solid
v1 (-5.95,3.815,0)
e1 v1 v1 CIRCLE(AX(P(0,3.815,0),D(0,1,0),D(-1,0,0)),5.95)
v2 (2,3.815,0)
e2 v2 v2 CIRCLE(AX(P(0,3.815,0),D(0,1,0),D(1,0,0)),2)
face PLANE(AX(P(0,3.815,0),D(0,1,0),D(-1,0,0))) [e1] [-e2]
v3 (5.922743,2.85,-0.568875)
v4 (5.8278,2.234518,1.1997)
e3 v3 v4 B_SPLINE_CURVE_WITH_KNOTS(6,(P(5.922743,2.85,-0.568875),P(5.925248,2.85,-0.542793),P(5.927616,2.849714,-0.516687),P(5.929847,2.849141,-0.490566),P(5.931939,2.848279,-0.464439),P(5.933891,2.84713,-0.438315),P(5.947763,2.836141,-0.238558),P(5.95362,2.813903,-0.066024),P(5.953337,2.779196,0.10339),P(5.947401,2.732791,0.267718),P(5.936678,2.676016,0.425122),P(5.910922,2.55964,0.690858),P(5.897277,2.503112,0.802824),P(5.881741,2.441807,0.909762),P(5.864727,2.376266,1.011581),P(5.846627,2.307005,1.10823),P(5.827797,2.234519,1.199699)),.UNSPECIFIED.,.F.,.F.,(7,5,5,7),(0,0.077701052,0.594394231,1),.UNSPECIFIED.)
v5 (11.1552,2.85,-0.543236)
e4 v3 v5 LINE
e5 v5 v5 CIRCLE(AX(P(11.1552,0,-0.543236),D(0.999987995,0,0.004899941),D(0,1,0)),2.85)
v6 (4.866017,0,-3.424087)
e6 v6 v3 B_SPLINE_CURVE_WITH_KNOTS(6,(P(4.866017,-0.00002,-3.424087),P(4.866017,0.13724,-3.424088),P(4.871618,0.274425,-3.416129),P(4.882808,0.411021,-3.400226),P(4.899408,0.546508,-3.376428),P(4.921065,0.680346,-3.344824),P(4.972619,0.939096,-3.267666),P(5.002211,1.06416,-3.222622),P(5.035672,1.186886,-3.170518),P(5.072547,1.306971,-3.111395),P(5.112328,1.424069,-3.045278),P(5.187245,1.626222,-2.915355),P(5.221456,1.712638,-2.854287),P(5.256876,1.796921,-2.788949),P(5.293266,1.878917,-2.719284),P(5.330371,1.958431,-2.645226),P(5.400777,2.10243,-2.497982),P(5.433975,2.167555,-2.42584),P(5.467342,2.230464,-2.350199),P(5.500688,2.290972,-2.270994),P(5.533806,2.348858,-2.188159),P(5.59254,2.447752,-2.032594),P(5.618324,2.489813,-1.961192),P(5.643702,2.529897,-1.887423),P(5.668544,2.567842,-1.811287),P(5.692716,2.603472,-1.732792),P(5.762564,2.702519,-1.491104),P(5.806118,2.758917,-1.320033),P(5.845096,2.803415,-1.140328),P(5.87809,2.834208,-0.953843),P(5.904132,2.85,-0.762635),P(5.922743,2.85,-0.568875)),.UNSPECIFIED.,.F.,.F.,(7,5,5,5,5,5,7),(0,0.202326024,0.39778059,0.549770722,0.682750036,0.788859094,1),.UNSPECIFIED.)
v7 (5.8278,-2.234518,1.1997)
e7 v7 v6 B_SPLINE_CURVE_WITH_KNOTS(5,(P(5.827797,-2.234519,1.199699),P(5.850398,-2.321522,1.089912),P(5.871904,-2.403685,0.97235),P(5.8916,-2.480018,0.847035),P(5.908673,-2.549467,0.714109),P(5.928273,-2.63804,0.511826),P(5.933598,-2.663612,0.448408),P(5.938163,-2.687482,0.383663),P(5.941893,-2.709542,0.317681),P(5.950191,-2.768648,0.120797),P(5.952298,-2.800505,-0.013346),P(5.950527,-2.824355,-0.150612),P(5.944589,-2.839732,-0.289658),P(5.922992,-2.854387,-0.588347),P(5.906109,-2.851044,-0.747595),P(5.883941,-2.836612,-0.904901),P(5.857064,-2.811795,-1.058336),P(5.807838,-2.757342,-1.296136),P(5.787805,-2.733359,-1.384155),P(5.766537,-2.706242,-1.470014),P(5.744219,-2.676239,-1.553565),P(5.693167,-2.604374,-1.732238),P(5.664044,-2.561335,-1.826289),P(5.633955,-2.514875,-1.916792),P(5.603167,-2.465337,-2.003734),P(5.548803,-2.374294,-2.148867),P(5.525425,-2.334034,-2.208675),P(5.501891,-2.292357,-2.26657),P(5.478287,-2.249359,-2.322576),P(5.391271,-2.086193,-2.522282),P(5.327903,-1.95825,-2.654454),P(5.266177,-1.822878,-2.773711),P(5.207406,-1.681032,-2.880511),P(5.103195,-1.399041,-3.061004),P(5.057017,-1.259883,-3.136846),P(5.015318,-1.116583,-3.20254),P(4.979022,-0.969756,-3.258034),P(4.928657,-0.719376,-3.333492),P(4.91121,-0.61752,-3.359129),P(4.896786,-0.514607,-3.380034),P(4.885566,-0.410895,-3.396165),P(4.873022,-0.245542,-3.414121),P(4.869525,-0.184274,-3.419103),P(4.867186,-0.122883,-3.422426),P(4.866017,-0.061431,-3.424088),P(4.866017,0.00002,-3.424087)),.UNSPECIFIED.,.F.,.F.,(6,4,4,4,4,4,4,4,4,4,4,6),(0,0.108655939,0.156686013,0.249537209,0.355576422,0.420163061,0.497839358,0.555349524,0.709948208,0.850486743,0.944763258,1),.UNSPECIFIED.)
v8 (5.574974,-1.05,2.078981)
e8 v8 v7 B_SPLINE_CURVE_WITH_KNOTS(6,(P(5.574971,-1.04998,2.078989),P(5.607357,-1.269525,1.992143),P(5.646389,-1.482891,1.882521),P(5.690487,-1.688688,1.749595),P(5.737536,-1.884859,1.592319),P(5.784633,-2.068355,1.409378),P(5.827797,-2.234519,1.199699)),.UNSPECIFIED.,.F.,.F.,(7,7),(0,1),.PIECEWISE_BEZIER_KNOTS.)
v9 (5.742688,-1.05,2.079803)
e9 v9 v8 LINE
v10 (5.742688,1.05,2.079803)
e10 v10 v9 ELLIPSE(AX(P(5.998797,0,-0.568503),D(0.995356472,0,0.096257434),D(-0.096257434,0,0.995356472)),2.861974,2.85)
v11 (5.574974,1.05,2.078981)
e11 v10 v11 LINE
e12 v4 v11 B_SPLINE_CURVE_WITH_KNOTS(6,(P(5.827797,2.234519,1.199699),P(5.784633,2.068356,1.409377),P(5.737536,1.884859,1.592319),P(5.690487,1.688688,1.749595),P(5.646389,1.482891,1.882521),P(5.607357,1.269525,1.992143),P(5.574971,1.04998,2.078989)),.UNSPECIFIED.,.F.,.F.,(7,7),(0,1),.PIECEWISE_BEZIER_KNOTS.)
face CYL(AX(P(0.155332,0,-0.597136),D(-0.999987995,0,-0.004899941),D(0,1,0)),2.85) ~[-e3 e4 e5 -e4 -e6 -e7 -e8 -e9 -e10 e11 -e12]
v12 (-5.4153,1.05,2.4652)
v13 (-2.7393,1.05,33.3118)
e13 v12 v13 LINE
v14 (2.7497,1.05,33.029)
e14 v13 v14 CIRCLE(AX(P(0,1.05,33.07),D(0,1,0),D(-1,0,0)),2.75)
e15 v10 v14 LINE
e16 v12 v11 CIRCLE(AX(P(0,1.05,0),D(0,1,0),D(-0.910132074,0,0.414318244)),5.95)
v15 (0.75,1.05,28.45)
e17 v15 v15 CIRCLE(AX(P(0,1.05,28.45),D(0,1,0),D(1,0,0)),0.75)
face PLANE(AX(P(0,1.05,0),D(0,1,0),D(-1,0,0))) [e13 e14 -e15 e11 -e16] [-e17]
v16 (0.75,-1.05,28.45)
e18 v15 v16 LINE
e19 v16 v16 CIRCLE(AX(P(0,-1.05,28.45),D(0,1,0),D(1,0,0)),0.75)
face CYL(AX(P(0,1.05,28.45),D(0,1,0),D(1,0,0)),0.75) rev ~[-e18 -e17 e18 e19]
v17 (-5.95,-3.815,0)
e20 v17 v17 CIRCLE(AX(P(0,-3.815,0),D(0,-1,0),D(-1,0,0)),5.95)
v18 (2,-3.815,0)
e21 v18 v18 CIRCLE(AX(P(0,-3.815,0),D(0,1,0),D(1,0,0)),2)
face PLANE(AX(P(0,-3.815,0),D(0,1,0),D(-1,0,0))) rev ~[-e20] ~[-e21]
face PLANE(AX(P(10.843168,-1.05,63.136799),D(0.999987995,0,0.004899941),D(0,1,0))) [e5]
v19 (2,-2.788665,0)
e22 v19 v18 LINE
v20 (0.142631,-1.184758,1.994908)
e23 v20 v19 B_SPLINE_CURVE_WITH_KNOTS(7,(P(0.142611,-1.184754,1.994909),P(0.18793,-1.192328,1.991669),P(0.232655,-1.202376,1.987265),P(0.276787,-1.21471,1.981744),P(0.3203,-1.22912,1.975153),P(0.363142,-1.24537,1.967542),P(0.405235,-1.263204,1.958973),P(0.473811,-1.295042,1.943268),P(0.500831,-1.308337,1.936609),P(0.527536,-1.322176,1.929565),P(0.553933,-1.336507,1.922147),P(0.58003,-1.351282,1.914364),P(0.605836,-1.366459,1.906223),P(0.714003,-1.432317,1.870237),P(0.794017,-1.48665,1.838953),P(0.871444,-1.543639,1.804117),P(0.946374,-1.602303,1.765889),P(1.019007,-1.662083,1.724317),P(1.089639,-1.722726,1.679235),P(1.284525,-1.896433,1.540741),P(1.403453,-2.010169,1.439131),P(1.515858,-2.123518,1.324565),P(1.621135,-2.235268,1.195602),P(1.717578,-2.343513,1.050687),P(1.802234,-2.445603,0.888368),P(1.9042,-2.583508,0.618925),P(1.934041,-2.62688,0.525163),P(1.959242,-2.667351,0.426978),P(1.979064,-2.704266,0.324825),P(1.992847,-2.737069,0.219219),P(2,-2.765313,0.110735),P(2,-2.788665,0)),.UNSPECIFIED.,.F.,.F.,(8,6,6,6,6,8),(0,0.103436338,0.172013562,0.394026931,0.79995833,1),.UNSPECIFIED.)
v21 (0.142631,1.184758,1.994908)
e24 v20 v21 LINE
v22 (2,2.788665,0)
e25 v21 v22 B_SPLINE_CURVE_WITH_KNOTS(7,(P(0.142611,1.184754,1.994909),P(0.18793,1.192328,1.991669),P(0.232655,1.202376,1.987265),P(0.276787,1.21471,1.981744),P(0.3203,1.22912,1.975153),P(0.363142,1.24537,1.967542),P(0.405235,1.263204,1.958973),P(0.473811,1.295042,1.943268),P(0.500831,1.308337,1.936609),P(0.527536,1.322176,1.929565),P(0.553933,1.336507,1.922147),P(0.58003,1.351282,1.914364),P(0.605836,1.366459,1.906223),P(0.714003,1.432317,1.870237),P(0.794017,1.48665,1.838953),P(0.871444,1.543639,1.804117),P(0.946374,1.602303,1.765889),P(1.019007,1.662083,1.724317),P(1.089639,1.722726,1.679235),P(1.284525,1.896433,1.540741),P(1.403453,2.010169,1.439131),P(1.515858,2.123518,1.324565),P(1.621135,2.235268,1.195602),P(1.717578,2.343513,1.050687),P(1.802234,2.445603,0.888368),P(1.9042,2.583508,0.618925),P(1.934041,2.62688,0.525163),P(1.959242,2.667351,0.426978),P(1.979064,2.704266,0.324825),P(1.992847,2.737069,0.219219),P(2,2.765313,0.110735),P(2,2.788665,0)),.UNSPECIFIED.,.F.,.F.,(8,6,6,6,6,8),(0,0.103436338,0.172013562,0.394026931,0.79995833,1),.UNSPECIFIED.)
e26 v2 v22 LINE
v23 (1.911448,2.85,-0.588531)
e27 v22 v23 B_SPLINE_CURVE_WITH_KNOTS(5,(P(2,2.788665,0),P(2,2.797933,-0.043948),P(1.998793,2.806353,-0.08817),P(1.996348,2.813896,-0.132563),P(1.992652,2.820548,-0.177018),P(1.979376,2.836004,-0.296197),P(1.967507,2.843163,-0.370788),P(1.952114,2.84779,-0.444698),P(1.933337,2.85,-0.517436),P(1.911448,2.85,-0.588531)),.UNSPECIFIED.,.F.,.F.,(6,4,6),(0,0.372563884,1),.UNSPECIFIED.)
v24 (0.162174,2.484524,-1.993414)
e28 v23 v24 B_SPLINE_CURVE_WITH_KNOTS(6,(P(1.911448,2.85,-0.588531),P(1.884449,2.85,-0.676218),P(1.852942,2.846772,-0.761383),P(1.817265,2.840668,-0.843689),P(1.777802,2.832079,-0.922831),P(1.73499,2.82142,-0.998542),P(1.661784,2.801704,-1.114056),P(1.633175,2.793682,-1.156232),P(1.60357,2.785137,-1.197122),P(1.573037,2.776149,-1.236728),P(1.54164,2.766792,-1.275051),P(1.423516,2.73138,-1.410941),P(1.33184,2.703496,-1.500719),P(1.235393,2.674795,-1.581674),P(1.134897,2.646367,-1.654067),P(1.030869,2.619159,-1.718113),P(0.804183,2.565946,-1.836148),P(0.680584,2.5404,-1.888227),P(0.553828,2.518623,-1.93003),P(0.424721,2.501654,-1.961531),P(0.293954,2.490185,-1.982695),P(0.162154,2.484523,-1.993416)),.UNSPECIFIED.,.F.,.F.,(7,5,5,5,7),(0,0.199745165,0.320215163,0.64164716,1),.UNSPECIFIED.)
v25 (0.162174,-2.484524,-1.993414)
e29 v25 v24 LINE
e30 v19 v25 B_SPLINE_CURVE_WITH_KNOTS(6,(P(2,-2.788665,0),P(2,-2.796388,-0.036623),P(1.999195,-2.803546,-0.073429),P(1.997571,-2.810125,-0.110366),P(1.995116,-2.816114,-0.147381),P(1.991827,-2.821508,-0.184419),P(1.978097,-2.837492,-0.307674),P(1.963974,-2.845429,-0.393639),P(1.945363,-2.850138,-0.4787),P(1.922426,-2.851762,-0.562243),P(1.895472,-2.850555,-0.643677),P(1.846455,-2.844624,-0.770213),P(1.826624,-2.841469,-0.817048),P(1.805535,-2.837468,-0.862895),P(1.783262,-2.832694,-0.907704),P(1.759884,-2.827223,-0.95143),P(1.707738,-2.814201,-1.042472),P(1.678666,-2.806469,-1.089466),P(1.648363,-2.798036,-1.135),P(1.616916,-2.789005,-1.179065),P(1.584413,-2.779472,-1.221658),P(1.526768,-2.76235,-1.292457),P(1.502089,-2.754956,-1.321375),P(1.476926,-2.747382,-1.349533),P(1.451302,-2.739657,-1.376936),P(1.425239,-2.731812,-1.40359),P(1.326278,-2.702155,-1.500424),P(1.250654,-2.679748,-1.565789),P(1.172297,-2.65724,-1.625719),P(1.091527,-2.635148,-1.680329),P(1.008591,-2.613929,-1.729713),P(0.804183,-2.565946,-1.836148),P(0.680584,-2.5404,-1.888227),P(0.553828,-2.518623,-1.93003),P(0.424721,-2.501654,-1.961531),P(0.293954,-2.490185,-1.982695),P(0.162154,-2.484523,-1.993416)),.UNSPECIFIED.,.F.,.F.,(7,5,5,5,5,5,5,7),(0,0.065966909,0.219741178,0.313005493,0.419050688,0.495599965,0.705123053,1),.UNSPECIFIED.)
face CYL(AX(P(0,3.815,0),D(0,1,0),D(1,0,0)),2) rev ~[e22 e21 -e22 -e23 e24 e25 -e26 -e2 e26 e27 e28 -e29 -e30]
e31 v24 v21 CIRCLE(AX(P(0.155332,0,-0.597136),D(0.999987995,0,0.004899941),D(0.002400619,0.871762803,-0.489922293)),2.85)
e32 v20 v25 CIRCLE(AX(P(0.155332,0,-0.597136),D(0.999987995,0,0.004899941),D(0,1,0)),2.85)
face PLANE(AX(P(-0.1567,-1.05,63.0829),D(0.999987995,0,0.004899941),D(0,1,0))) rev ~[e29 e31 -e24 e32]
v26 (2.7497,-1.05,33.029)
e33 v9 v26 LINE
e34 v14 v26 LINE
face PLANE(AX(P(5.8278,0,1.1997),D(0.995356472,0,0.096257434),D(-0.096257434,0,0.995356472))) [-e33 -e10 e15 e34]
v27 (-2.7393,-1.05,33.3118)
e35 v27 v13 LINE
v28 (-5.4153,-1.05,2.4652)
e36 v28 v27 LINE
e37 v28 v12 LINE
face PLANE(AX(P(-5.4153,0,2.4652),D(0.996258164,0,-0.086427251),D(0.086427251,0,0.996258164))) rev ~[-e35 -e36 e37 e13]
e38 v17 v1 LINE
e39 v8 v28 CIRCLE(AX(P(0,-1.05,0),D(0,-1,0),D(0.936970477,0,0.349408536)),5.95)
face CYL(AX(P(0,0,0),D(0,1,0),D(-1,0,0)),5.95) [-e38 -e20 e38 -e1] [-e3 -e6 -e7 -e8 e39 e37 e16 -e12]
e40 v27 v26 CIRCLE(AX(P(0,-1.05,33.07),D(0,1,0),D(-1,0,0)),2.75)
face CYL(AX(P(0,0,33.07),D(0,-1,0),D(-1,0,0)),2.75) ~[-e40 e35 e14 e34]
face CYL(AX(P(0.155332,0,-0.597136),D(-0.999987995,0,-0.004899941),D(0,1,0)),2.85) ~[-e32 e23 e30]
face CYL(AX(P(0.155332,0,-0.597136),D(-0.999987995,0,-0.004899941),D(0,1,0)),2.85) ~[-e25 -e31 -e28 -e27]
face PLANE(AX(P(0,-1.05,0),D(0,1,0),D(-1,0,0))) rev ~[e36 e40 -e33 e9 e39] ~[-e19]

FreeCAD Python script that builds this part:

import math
import FreeCAD as App
import Part
import Sketcher

V = App.Vector

doc = App.newDocument("Part")
body = doc.addObject("PartDesign::Body", "Body")

# Sketch on XZ plane
sketch1 = doc.addObject("Sketcher::SketchObject", "Sketch")
body.addObject(sketch1)
sketch1.AttachmentSupport = (doc.XZ_Plane, [""])
sketch1.MapMode = "FlatFace"
sketch1.addGeometry(Part.Circle(V(0, 0, 0), V(0, 0, 1), 6), False)
sketch1.addConstraint([
    Sketcher.Constraint("Coincident", 0, 3, -1, 1),
    Sketcher.Constraint("Diameter", 0, 11.9),
])
pad1 = doc.addObject("PartDesign::Pad", "Pad")
body.addObject(pad1)
pad1.Profile = sketch1
pad1.Length = 7.63
pad1.Midplane = True

# Sketch on XZ plane
sketch2 = doc.addObject("Sketcher::SketchObject", "Sketch001")
body.addObject(sketch2)
sketch2.AttachmentSupport = (doc.XZ_Plane, [""])
sketch2.MapMode = "FlatFace"
sketch2.addGeometry([
    Part.LineSegment(V(-5.4, 2.5, 0), V(-2.7, 33.3, 0)),
    Part.ArcOfCircle(Part.Circle(V(0, 33.1, 0), V(0, 0, 1), 2.8), math.radians(-1), math.radians(175)),
    Part.LineSegment(V(2.7, 33, 0), V(5.8, 1.2, 0)),
    Part.ArcOfCircle(Part.Circle(V(0, 0, 0), V(0, 0, 1), 6), math.radians(12), math.radians(156)),
], False)
sketch2.addConstraint([
    Sketcher.Constraint("Coincident", 0, 2, 1, 2),
    Sketcher.Constraint("Coincident", 1, 1, 2, 1),
    Sketcher.Constraint("Coincident", 2, 2, 3, 1),
    Sketcher.Constraint("Coincident", 3, 2, 0, 1),
    Sketcher.Constraint("Coincident", 3, 3, -1, 1),
    Sketcher.Constraint("PointOnObject", 1, 3, -2),
    Sketcher.Constraint("Radius", 1, 2.75),
    Sketcher.Constraint("Radius", 3, 5.95),
    Sketcher.Constraint("DistanceY", -1, 1, 1, 3, 33.07),
    Sketcher.Constraint("DistanceY", -1, 1, 1, 1, 33.029),
    Sketcher.Constraint("DistanceX", 0, 2, 1, 1, 5.489),
    Sketcher.Constraint("DistanceX", 1, 1, 2, 2, 3.078),
    Sketcher.Constraint("DistanceX", 3, 2, 2, 2, 11.243),
])
pad2 = doc.addObject("PartDesign::Pad", "Pad001")
body.addObject(pad2)
pad2.Profile = sketch2
pad2.Length = 2.1
pad2.Midplane = True

# Sketch on XZ plane
sketch3 = doc.addObject("Sketcher::SketchObject", "Sketch002")
body.addObject(sketch3)
sketch3.AttachmentSupport = (doc.XZ_Plane, [""])
sketch3.MapMode = "FlatFace"
sketch3.AttachmentOffset = App.Placement(V(0, 0, -1.05), App.Rotation())
sketch3.addGeometry(Part.Circle(V(0, 28.4, 0), V(0, 0, 1), 0.8), False)
sketch3.addConstraint([
    Sketcher.Constraint("PointOnObject", 0, 3, -2),
    Sketcher.Constraint("Diameter", 0, 1.5),
    Sketcher.Constraint("DistanceY", -1, 1, 0, 3, 28.45),
])
pocket1 = doc.addObject("PartDesign::Pocket", "Pocket")
body.addObject(pocket1)
pocket1.Profile = sketch3
pocket1.Length = 2.1
pocket1.Reversed = True

# Sketch on XZ plane
sketch4 = doc.addObject("Sketcher::SketchObject", "Sketch003")
body.addObject(sketch4)
sketch4.AttachmentSupport = (doc.XZ_Plane, [""])
sketch4.MapMode = "FlatFace"
sketch4.AttachmentOffset = App.Placement(V(0, 0, -3.815), App.Rotation())
sketch4.addGeometry(Part.Circle(V(0, 0, 0), V(0, 0, 1), 2), False)
sketch4.addConstraint([
    Sketcher.Constraint("Coincident", 0, 3, -1, 1),
    Sketcher.Constraint("Diameter", 0, 4.0),
])
pocket2 = doc.addObject("PartDesign::Pocket", "Pocket001")
body.addObject(pocket2)
pocket2.Profile = sketch4
pocket2.Length = 50
pocket2.Reversed = True

# Sketch on an angled plane
sketch5 = doc.addObject("Sketcher::SketchObject", "Sketch004")
body.addObject(sketch5)
sketch5.Placement = App.Placement(V(-0.1567, -1.05, 63.0829), App.Rotation(V(0, 1, 0), V(-0.004899941, 0, 0.999987995), V(0.999987995, 0, 0.004899941), "ZXY"))
sketch5.addGeometry(Part.Circle(V(1.1, -63.7, 0), V(0, 0, 1), 2.9), False)
sketch5.addConstraint([
    Sketcher.Constraint("Diameter", 0, 5.7),
    Sketcher.Constraint("DistanceX", -1, 1, 0, 3, 1.05),
    Sketcher.Constraint("DistanceY", 0, 3, -1, 1, 63.6808),
])
pad3 = doc.addObject("PartDesign::Pad", "Pad002")
body.addObject(pad3)
pad3.Profile = sketch5
pad3.Length = 11

doc.recompute()
